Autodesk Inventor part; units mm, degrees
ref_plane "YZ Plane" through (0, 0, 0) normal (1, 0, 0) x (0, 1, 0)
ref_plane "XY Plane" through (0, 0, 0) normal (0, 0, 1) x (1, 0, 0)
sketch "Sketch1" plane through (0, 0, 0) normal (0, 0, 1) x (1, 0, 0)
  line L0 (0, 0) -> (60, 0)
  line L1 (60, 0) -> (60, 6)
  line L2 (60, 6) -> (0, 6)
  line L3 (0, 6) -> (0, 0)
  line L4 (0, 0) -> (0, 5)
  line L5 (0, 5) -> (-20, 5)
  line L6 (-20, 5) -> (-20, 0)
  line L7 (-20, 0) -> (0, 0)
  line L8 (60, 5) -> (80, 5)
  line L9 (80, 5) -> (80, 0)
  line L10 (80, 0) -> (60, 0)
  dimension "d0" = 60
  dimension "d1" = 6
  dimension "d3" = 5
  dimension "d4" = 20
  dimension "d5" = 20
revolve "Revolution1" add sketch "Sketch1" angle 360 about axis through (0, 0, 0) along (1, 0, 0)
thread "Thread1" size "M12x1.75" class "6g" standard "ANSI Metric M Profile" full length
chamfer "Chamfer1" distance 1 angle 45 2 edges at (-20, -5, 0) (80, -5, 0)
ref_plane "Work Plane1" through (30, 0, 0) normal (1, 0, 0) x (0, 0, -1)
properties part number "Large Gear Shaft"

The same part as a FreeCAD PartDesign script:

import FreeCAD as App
import Part
import Sketcher
from FreeCAD import Vector


def edges_at(feature, points):
    """Names of the edges that pass closest to the given points."""
    edges = feature.Shape.Edges
    near = lambda p: min(range(len(edges)), key=lambda i: edges[i].distToShape(Part.Vertex(*p))[0])
    return sorted({f"Edge{near(p) + 1}" for p in points})


def add_polygon(sketch, points):
    """Adds a closed chain of lines whose ends are joined by coincident constraints."""
    first, n = sketch.GeometryCount, len(points)
    for a, b in zip(points, points[1:] + points[:1]):
        sketch.addGeometry(Part.LineSegment(App.Vector(*a, 0), App.Vector(*b, 0)), False)
    for i in range(n):
        sketch.addConstraint(Sketcher.Constraint("Coincident", first + i, 2, first + (i + 1) % n, 1))

doc = App.newDocument("Part")
body = doc.addObject("PartDesign::Body", "Body")

# Sketch on XY plane
sketch1 = body.newObject("Sketcher::SketchObject", "Sketch")
sketch1.AttachmentSupport = (doc.getObject("XY_Plane"), [""])
sketch1.MapMode = "FlatFace"
add_polygon(sketch1, [(0, 6), (0, 5), (-20, 5), (-20, 0), (80, 0), (80, 5), (60, 5), (60, 6)])  # lines 0-7
sketch1.addConstraint(Sketcher.Constraint("Vertical", 0))
sketch1.addConstraint(Sketcher.Constraint("Horizontal", 1))
sketch1.addConstraint(Sketcher.Constraint("Vertical", 2))
sketch1.addConstraint(Sketcher.Constraint("Horizontal", 3))
sketch1.addConstraint(Sketcher.Constraint("Vertical", 4))
sketch1.addConstraint(Sketcher.Constraint("Horizontal", 5))
sketch1.addConstraint(Sketcher.Constraint("Vertical", 6))
sketch1.addConstraint(Sketcher.Constraint("Horizontal", 7))
sketch1.addConstraint(Sketcher.Constraint("PointOnObject", 0, 2, -2))
sketch1.addConstraint(Sketcher.Constraint("PointOnObject", 2, 2, -1))
sketch1.addConstraint(Sketcher.Constraint("Horizontal", 1, 2, 4, 2))
sketch1.addConstraint(Sketcher.Constraint("Equal", 1, 5))
sketch1.addConstraint(Sketcher.Constraint("DistanceX", 1, 2, 1, 1, 20.0))
sketch1.addConstraint(Sketcher.Constraint("DistanceX", 7, 2, 7, 1, 60.0))
sketch1.addConstraint(Sketcher.Constraint("DistanceY", 2, 2, 2, 1, 5.0))
sketch1.addConstraint(Sketcher.Constraint("DistanceY", -1, 1, 6, 2, 6.0))
revolution = body.newObject("PartDesign::Revolution", "Revolution")
revolution.Profile = sketch1
revolution.ReferenceAxis = (sketch1, ["H_Axis"])
revolution.Angle = 360
doc.recompute()

chamfer = body.newObject("PartDesign::Chamfer", "Chamfer")
chamfer.Base = (revolution, edges_at(revolution, [(-20, -5, 0), (80, -5, 0)]))
chamfer.Size = 1

doc.recompute()
